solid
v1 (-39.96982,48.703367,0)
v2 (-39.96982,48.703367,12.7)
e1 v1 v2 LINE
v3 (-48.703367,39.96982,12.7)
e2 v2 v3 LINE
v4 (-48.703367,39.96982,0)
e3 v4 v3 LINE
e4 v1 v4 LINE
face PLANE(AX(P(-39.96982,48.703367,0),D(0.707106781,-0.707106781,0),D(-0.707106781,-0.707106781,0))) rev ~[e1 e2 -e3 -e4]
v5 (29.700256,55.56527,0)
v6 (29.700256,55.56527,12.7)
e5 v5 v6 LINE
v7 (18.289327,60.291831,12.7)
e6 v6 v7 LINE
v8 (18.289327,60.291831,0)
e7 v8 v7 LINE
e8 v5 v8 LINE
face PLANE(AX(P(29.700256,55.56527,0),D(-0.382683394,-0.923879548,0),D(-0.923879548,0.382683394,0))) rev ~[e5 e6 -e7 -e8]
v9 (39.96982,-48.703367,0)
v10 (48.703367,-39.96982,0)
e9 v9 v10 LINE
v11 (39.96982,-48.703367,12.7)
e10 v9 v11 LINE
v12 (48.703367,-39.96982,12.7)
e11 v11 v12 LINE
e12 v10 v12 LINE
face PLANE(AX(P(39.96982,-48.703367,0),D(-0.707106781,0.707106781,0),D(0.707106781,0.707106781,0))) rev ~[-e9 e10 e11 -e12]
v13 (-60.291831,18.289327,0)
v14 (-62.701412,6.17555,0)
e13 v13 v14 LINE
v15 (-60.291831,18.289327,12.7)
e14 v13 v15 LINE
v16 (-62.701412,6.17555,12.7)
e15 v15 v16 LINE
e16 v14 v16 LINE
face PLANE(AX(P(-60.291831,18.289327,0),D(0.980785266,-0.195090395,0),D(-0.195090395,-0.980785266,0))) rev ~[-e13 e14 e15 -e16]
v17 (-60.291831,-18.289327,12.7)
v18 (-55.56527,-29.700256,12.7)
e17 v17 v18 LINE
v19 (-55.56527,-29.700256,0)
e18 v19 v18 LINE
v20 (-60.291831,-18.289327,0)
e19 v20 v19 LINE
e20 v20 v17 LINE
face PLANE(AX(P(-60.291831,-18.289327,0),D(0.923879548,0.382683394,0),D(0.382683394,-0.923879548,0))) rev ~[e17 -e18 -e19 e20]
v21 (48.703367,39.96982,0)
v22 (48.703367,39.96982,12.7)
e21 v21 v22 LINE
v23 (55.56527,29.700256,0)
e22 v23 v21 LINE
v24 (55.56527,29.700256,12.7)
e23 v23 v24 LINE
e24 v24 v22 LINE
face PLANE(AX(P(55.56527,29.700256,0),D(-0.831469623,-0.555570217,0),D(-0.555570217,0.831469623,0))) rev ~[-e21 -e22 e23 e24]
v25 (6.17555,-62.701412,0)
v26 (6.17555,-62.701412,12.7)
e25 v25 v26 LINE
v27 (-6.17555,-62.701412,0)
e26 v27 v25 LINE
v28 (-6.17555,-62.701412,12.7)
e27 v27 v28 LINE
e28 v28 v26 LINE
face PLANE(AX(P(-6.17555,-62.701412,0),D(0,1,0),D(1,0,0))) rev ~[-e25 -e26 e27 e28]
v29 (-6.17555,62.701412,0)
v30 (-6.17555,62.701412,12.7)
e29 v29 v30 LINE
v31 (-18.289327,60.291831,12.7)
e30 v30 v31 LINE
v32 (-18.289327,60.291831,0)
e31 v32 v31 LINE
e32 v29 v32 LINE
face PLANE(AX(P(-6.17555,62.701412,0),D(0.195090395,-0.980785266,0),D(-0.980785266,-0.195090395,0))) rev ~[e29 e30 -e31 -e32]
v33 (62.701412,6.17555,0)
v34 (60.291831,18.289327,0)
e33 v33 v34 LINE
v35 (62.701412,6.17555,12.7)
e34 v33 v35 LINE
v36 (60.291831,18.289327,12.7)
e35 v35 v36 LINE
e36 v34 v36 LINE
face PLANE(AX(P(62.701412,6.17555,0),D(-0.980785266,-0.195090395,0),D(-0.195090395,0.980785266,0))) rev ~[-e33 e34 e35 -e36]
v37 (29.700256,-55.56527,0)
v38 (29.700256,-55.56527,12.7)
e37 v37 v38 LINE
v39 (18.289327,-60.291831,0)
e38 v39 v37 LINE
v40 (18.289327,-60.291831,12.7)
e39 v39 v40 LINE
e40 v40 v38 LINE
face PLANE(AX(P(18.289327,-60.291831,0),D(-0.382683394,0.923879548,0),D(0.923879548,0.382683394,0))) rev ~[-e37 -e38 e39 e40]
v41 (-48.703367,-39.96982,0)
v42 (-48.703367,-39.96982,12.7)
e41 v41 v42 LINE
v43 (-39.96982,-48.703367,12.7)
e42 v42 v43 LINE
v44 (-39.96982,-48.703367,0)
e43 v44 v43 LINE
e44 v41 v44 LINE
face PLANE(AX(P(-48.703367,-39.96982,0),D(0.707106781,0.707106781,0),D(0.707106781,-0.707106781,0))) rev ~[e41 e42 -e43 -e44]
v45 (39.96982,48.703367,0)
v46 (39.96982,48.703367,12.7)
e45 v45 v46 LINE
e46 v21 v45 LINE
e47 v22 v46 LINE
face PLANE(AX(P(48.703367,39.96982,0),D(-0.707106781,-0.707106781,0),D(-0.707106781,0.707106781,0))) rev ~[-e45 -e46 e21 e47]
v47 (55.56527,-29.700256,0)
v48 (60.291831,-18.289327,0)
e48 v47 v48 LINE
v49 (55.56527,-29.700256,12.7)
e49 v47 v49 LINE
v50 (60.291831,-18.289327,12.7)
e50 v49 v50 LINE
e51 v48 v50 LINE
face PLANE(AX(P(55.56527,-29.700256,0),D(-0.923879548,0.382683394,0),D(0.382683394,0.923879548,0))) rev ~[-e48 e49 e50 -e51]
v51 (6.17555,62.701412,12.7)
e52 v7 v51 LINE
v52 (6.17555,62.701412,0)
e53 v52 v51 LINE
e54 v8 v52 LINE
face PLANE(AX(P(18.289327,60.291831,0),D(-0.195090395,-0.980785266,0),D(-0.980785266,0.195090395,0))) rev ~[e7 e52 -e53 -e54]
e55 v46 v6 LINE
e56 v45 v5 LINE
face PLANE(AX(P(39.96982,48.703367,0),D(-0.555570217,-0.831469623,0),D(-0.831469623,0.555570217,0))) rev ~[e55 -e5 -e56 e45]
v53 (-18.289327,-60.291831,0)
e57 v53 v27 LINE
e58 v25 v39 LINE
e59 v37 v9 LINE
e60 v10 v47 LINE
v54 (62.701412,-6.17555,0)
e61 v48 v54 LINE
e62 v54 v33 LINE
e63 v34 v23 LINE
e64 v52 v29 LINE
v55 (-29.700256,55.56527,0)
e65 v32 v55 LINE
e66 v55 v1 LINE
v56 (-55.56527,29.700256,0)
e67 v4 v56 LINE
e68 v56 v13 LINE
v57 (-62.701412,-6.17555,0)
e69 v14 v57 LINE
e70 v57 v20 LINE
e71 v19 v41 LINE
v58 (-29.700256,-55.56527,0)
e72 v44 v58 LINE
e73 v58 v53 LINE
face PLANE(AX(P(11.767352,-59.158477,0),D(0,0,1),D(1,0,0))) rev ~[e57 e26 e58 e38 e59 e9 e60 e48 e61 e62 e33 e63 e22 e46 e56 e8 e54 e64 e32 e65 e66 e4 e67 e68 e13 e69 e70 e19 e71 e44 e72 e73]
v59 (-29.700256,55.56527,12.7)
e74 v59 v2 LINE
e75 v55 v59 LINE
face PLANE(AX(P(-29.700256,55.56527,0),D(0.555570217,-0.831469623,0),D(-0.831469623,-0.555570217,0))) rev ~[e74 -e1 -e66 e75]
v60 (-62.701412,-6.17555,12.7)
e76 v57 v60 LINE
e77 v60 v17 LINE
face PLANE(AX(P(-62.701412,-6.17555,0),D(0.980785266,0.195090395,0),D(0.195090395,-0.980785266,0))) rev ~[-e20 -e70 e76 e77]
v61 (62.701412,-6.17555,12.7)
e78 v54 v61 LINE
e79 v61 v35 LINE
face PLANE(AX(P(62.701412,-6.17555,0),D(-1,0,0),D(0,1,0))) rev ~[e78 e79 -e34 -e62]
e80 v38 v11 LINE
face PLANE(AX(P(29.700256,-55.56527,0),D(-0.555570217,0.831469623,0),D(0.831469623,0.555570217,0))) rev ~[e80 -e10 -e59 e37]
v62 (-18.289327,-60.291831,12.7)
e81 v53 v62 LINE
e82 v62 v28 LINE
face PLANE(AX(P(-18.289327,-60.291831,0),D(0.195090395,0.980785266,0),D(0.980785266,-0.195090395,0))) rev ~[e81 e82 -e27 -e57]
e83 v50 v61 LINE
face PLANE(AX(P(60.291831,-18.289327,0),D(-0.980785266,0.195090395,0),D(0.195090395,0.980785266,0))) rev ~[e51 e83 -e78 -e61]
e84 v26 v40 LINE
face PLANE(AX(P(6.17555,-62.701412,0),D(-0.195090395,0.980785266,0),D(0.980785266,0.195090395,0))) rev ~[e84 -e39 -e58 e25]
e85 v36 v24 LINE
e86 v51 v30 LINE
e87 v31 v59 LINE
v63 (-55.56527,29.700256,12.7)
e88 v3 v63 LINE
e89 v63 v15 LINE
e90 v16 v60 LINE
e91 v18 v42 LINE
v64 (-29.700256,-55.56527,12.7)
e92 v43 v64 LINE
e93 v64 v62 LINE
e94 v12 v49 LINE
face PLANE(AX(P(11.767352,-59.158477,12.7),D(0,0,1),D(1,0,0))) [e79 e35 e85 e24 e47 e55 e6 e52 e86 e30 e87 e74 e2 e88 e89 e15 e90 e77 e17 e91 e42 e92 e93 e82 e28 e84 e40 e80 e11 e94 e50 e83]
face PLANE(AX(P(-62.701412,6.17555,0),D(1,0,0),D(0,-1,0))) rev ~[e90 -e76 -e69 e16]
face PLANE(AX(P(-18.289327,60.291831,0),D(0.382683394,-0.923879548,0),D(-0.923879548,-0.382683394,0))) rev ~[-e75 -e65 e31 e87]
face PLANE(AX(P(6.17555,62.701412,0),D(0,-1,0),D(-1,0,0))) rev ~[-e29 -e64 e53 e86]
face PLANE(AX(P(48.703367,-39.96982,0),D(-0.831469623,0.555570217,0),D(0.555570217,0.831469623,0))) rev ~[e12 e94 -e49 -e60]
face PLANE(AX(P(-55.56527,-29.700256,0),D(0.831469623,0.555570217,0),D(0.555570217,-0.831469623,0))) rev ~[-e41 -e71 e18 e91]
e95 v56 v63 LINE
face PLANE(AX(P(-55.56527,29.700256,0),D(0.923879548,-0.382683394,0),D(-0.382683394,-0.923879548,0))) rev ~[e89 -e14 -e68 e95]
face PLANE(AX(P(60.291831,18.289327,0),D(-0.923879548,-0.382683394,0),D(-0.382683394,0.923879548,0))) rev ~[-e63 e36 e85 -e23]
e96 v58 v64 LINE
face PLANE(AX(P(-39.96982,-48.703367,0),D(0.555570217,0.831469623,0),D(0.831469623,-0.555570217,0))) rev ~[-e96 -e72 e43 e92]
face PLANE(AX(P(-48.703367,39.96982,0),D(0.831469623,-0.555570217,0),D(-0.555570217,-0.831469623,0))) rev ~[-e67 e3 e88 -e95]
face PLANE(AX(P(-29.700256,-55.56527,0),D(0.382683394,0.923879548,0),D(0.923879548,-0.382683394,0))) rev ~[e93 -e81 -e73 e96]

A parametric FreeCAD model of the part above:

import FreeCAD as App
import Part
import Sketcher
from FreeCAD import Vector
Q = App.Units.Quantity

doc = App.newDocument("Part")
body = doc.addObject("PartDesign::Body", "Body")

# Sketch on XY plane
sketch1 = body.newObject("Sketcher::SketchObject", "Sketch")
sketch1.AttachmentSupport = (doc.getObject("XY_Plane"), [""])
sketch1.MapMode = "FlatFace"
sketch1.addGeometry([
    Part.LineSegment(Vector(6, -63, 0), Vector(18, -60, 0)),  # 0
    Part.LineSegment(Vector(18, -60, 0), Vector(30, -56, 0)),  # 1
    Part.LineSegment(Vector(30, -56, 0), Vector(40, -49, 0)),  # 2
    Part.LineSegment(Vector(40, -49, 0), Vector(49, -40, 0)),  # 3
    Part.LineSegment(Vector(49, -40, 0), Vector(56, -30, 0)),  # 4
    Part.LineSegment(Vector(56, -30, 0), Vector(60, -18, 0)),  # 5
    Part.LineSegment(Vector(60, -18, 0), Vector(63, -6, 0)),  # 6
    Part.LineSegment(Vector(63, -6, 0), Vector(63, 6, 0)),  # 7
    Part.LineSegment(Vector(63, 6, 0), Vector(60, 18, 0)),  # 8
    Part.LineSegment(Vector(60, 18, 0), Vector(56, 30, 0)),  # 9
    Part.LineSegment(Vector(56, 30, 0), Vector(49, 40, 0)),  # 10
    Part.LineSegment(Vector(49, 40, 0), Vector(40, 49, 0)),  # 11
    Part.LineSegment(Vector(40, 49, 0), Vector(30, 56, 0)),  # 12
    Part.LineSegment(Vector(30, 56, 0), Vector(18, 60, 0)),  # 13
    Part.LineSegment(Vector(18, 60, 0), Vector(6, 63, 0)),  # 14
    Part.LineSegment(Vector(6, 63, 0), Vector(-6, 63, 0)),  # 15
    Part.LineSegment(Vector(-6, 63, 0), Vector(-18, 60, 0)),  # 16
    Part.LineSegment(Vector(-18, 60, 0), Vector(-30, 56, 0)),  # 17
    Part.LineSegment(Vector(-30, 56, 0), Vector(-40, 49, 0)),  # 18
    Part.LineSegment(Vector(-40, 49, 0), Vector(-49, 40, 0)),  # 19
    Part.LineSegment(Vector(-49, 40, 0), Vector(-56, 30, 0)),  # 20
    Part.LineSegment(Vector(-56, 30, 0), Vector(-60, 18, 0)),  # 21
    Part.LineSegment(Vector(-60, 18, 0), Vector(-63, 6, 0)),  # 22
    Part.LineSegment(Vector(-63, 6, 0), Vector(-63, -6, 0)),  # 23
    Part.LineSegment(Vector(-63, -6, 0), Vector(-60, -18, 0)),  # 24
    Part.LineSegment(Vector(-60, -18, 0), Vector(-56, -30, 0)),  # 25
    Part.LineSegment(Vector(-56, -30, 0), Vector(-49, -40, 0)),  # 26
    Part.LineSegment(Vector(-49, -40, 0), Vector(-40, -49, 0)),  # 27
    Part.LineSegment(Vector(-40, -49, 0), Vector(-30, -56, 0)),  # 28
    Part.LineSegment(Vector(-30, -56, 0), Vector(-18, -60, 0)),  # 29
    Part.LineSegment(Vector(-18, -60, 0), Vector(-6, -63, 0)),  # 30
    Part.LineSegment(Vector(-6, -63, 0), Vector(6, -63, 0)),  # 31
], False)
sketch1.addConstraint([
    Sketcher.Constraint("Coincident", 0, 2, 1, 1),
    Sketcher.Constraint("Coincident", 1, 2, 2, 1),
    Sketcher.Constraint("Coincident", 2, 2, 3, 1),
    Sketcher.Constraint("Coincident", 3, 2, 4, 1),
    Sketcher.Constraint("Coincident", 4, 2, 5, 1),
    Sketcher.Constraint("Coincident", 5, 2, 6, 1),
    Sketcher.Constraint("Coincident", 6, 2, 7, 1),
    Sketcher.Constraint("Coincident", 7, 2, 8, 1),
    Sketcher.Constraint("Coincident", 8, 2, 9, 1),
    Sketcher.Constraint("Coincident", 9, 2, 10, 1),
    Sketcher.Constraint("Coincident", 10, 2, 11, 1),
    Sketcher.Constraint("Coincident", 11, 2, 12, 1),
    Sketcher.Constraint("Coincident", 12, 2, 13, 1),
    Sketcher.Constraint("Coincident", 13, 2, 14, 1),
    Sketcher.Constraint("Coincident", 14, 2, 15, 1),
    Sketcher.Constraint("Coincident", 15, 2, 16, 1),
    Sketcher.Constraint("Coincident", 16, 2, 17, 1),
    Sketcher.Constraint("Coincident", 17, 2, 18, 1),
    Sketcher.Constraint("Coincident", 18, 2, 19, 1),
    Sketcher.Constraint("Coincident", 19, 2, 20, 1),
    Sketcher.Constraint("Coincident", 20, 2, 21, 1),
    Sketcher.Constraint("Coincident", 21, 2, 22, 1),
    Sketcher.Constraint("Coincident", 22, 2, 23, 1),
    Sketcher.Constraint("Coincident", 23, 2, 24, 1),
    Sketcher.Constraint("Coincident", 24, 2, 25, 1),
    Sketcher.Constraint("Coincident", 25, 2, 26, 1),
    Sketcher.Constraint("Coincident", 26, 2, 27, 1),
    Sketcher.Constraint("Coincident", 27, 2, 28, 1),
    Sketcher.Constraint("Coincident", 28, 2, 29, 1),
    Sketcher.Constraint("Coincident", 29, 2, 30, 1),
    Sketcher.Constraint("Coincident", 30, 2, 31, 1),
    Sketcher.Constraint("Coincident", 31, 2, 0, 1),
    Sketcher.Constraint("Vertical", 7),
    Sketcher.Constraint("Horizontal", 15),
    Sketcher.Constraint("Vertical", 23),
    Sketcher.Constraint("Horizontal", 31),
    Sketcher.Constraint("Symmetric", 0, 2, 16, 2, -1, 1),
    Sketcher.Constraint("Symmetric", 1, 2, 17, 2, -1, 1),
    Sketcher.Constraint("Symmetric", 2, 2, 18, 2, -1, 1),
    Sketcher.Constraint("Symmetric", 3, 2, 19, 2, -1, 1),
    Sketcher.Constraint("Symmetric", 4, 2, 20, 2, -1, 1),
    Sketcher.Constraint("Symmetric", 5, 2, 21, 2, -1, 1),
    Sketcher.Constraint("Symmetric", 6, 2, 22, 2, -1, 1),
    Sketcher.Constraint("Symmetric", 8, 2, 24, 2, -1, 1),
    Sketcher.Constraint("Symmetric", 9, 2, 25, 2, -1, 1),
    Sketcher.Constraint("Symmetric", 10, 2, 26, 2, -1, 1),
    Sketcher.Constraint("Symmetric", 11, 2, 27, 2, -1, 1),
    Sketcher.Constraint("Symmetric", 12, 2, 28, 2, -1, 1),
    Sketcher.Constraint("Symmetric", 13, 2, 29, 2, -1, 1),
    Sketcher.Constraint("Symmetric", 14, 2, 30, 2, -1, 1),
    Sketcher.Constraint("Symmetric", 13, 2, 16, 2, -2),
    Sketcher.Constraint("Symmetric", 12, 2, 17, 2, -2),
    Sketcher.Constraint("Symmetric", 11, 2, 18, 2, -2),
    Sketcher.Constraint("Symmetric", 10, 2, 19, 2, -2),
    Sketcher.Constraint("Symmetric", 9, 2, 20, 2, -2),
    Sketcher.Constraint("Symmetric", 8, 2, 21, 2, -2),
    Sketcher.Constraint("Perpendicular", 0, 8),
    Sketcher.Constraint("Perpendicular", 1, 9),
    Sketcher.Constraint("Perpendicular", 2, 10),
    Sketcher.Constraint("Perpendicular", 3, 11),
    Sketcher.Constraint("Perpendicular", 6, 14),
    Sketcher.Constraint("Perpendicular", 8, 16),
    Sketcher.Constraint("Perpendicular", 16, 24),
    Sketcher.Constraint("Horizontal", 7, 2, 22, 2),
    Sketcher.Constraint("Equal", 31, 7),
    Sketcher.Constraint("Equal", 0, 1),
    Sketcher.Constraint("Equal", 1, 2),
    Sketcher.Constraint("Equal", 2, 3),
    Sketcher.Constraint("Equal", 3, 4),
    Sketcher.Constraint("Equal", 4, 5),
    Sketcher.Constraint("Equal", 5, 6),
    Sketcher.Constraint("Angle", 1, Q("22.499998 deg")),
    Sketcher.Constraint("Angle", 0, Q("11.250004 deg")),
    Sketcher.Constraint("Angle", 2, Q("33.749999 deg")),
    Sketcher.Constraint("DistanceX", 15, 2, 15, 1, Q("12.3511 mm")),
    Sketcher.Constraint("Distance", 0, Q("12.3511 mm")),
])
pad1 = body.newObject("PartDesign::Pad", "Pad")
pad1.Profile = sketch1
pad1.Length = Q("0.5 in")

doc.recompute()
